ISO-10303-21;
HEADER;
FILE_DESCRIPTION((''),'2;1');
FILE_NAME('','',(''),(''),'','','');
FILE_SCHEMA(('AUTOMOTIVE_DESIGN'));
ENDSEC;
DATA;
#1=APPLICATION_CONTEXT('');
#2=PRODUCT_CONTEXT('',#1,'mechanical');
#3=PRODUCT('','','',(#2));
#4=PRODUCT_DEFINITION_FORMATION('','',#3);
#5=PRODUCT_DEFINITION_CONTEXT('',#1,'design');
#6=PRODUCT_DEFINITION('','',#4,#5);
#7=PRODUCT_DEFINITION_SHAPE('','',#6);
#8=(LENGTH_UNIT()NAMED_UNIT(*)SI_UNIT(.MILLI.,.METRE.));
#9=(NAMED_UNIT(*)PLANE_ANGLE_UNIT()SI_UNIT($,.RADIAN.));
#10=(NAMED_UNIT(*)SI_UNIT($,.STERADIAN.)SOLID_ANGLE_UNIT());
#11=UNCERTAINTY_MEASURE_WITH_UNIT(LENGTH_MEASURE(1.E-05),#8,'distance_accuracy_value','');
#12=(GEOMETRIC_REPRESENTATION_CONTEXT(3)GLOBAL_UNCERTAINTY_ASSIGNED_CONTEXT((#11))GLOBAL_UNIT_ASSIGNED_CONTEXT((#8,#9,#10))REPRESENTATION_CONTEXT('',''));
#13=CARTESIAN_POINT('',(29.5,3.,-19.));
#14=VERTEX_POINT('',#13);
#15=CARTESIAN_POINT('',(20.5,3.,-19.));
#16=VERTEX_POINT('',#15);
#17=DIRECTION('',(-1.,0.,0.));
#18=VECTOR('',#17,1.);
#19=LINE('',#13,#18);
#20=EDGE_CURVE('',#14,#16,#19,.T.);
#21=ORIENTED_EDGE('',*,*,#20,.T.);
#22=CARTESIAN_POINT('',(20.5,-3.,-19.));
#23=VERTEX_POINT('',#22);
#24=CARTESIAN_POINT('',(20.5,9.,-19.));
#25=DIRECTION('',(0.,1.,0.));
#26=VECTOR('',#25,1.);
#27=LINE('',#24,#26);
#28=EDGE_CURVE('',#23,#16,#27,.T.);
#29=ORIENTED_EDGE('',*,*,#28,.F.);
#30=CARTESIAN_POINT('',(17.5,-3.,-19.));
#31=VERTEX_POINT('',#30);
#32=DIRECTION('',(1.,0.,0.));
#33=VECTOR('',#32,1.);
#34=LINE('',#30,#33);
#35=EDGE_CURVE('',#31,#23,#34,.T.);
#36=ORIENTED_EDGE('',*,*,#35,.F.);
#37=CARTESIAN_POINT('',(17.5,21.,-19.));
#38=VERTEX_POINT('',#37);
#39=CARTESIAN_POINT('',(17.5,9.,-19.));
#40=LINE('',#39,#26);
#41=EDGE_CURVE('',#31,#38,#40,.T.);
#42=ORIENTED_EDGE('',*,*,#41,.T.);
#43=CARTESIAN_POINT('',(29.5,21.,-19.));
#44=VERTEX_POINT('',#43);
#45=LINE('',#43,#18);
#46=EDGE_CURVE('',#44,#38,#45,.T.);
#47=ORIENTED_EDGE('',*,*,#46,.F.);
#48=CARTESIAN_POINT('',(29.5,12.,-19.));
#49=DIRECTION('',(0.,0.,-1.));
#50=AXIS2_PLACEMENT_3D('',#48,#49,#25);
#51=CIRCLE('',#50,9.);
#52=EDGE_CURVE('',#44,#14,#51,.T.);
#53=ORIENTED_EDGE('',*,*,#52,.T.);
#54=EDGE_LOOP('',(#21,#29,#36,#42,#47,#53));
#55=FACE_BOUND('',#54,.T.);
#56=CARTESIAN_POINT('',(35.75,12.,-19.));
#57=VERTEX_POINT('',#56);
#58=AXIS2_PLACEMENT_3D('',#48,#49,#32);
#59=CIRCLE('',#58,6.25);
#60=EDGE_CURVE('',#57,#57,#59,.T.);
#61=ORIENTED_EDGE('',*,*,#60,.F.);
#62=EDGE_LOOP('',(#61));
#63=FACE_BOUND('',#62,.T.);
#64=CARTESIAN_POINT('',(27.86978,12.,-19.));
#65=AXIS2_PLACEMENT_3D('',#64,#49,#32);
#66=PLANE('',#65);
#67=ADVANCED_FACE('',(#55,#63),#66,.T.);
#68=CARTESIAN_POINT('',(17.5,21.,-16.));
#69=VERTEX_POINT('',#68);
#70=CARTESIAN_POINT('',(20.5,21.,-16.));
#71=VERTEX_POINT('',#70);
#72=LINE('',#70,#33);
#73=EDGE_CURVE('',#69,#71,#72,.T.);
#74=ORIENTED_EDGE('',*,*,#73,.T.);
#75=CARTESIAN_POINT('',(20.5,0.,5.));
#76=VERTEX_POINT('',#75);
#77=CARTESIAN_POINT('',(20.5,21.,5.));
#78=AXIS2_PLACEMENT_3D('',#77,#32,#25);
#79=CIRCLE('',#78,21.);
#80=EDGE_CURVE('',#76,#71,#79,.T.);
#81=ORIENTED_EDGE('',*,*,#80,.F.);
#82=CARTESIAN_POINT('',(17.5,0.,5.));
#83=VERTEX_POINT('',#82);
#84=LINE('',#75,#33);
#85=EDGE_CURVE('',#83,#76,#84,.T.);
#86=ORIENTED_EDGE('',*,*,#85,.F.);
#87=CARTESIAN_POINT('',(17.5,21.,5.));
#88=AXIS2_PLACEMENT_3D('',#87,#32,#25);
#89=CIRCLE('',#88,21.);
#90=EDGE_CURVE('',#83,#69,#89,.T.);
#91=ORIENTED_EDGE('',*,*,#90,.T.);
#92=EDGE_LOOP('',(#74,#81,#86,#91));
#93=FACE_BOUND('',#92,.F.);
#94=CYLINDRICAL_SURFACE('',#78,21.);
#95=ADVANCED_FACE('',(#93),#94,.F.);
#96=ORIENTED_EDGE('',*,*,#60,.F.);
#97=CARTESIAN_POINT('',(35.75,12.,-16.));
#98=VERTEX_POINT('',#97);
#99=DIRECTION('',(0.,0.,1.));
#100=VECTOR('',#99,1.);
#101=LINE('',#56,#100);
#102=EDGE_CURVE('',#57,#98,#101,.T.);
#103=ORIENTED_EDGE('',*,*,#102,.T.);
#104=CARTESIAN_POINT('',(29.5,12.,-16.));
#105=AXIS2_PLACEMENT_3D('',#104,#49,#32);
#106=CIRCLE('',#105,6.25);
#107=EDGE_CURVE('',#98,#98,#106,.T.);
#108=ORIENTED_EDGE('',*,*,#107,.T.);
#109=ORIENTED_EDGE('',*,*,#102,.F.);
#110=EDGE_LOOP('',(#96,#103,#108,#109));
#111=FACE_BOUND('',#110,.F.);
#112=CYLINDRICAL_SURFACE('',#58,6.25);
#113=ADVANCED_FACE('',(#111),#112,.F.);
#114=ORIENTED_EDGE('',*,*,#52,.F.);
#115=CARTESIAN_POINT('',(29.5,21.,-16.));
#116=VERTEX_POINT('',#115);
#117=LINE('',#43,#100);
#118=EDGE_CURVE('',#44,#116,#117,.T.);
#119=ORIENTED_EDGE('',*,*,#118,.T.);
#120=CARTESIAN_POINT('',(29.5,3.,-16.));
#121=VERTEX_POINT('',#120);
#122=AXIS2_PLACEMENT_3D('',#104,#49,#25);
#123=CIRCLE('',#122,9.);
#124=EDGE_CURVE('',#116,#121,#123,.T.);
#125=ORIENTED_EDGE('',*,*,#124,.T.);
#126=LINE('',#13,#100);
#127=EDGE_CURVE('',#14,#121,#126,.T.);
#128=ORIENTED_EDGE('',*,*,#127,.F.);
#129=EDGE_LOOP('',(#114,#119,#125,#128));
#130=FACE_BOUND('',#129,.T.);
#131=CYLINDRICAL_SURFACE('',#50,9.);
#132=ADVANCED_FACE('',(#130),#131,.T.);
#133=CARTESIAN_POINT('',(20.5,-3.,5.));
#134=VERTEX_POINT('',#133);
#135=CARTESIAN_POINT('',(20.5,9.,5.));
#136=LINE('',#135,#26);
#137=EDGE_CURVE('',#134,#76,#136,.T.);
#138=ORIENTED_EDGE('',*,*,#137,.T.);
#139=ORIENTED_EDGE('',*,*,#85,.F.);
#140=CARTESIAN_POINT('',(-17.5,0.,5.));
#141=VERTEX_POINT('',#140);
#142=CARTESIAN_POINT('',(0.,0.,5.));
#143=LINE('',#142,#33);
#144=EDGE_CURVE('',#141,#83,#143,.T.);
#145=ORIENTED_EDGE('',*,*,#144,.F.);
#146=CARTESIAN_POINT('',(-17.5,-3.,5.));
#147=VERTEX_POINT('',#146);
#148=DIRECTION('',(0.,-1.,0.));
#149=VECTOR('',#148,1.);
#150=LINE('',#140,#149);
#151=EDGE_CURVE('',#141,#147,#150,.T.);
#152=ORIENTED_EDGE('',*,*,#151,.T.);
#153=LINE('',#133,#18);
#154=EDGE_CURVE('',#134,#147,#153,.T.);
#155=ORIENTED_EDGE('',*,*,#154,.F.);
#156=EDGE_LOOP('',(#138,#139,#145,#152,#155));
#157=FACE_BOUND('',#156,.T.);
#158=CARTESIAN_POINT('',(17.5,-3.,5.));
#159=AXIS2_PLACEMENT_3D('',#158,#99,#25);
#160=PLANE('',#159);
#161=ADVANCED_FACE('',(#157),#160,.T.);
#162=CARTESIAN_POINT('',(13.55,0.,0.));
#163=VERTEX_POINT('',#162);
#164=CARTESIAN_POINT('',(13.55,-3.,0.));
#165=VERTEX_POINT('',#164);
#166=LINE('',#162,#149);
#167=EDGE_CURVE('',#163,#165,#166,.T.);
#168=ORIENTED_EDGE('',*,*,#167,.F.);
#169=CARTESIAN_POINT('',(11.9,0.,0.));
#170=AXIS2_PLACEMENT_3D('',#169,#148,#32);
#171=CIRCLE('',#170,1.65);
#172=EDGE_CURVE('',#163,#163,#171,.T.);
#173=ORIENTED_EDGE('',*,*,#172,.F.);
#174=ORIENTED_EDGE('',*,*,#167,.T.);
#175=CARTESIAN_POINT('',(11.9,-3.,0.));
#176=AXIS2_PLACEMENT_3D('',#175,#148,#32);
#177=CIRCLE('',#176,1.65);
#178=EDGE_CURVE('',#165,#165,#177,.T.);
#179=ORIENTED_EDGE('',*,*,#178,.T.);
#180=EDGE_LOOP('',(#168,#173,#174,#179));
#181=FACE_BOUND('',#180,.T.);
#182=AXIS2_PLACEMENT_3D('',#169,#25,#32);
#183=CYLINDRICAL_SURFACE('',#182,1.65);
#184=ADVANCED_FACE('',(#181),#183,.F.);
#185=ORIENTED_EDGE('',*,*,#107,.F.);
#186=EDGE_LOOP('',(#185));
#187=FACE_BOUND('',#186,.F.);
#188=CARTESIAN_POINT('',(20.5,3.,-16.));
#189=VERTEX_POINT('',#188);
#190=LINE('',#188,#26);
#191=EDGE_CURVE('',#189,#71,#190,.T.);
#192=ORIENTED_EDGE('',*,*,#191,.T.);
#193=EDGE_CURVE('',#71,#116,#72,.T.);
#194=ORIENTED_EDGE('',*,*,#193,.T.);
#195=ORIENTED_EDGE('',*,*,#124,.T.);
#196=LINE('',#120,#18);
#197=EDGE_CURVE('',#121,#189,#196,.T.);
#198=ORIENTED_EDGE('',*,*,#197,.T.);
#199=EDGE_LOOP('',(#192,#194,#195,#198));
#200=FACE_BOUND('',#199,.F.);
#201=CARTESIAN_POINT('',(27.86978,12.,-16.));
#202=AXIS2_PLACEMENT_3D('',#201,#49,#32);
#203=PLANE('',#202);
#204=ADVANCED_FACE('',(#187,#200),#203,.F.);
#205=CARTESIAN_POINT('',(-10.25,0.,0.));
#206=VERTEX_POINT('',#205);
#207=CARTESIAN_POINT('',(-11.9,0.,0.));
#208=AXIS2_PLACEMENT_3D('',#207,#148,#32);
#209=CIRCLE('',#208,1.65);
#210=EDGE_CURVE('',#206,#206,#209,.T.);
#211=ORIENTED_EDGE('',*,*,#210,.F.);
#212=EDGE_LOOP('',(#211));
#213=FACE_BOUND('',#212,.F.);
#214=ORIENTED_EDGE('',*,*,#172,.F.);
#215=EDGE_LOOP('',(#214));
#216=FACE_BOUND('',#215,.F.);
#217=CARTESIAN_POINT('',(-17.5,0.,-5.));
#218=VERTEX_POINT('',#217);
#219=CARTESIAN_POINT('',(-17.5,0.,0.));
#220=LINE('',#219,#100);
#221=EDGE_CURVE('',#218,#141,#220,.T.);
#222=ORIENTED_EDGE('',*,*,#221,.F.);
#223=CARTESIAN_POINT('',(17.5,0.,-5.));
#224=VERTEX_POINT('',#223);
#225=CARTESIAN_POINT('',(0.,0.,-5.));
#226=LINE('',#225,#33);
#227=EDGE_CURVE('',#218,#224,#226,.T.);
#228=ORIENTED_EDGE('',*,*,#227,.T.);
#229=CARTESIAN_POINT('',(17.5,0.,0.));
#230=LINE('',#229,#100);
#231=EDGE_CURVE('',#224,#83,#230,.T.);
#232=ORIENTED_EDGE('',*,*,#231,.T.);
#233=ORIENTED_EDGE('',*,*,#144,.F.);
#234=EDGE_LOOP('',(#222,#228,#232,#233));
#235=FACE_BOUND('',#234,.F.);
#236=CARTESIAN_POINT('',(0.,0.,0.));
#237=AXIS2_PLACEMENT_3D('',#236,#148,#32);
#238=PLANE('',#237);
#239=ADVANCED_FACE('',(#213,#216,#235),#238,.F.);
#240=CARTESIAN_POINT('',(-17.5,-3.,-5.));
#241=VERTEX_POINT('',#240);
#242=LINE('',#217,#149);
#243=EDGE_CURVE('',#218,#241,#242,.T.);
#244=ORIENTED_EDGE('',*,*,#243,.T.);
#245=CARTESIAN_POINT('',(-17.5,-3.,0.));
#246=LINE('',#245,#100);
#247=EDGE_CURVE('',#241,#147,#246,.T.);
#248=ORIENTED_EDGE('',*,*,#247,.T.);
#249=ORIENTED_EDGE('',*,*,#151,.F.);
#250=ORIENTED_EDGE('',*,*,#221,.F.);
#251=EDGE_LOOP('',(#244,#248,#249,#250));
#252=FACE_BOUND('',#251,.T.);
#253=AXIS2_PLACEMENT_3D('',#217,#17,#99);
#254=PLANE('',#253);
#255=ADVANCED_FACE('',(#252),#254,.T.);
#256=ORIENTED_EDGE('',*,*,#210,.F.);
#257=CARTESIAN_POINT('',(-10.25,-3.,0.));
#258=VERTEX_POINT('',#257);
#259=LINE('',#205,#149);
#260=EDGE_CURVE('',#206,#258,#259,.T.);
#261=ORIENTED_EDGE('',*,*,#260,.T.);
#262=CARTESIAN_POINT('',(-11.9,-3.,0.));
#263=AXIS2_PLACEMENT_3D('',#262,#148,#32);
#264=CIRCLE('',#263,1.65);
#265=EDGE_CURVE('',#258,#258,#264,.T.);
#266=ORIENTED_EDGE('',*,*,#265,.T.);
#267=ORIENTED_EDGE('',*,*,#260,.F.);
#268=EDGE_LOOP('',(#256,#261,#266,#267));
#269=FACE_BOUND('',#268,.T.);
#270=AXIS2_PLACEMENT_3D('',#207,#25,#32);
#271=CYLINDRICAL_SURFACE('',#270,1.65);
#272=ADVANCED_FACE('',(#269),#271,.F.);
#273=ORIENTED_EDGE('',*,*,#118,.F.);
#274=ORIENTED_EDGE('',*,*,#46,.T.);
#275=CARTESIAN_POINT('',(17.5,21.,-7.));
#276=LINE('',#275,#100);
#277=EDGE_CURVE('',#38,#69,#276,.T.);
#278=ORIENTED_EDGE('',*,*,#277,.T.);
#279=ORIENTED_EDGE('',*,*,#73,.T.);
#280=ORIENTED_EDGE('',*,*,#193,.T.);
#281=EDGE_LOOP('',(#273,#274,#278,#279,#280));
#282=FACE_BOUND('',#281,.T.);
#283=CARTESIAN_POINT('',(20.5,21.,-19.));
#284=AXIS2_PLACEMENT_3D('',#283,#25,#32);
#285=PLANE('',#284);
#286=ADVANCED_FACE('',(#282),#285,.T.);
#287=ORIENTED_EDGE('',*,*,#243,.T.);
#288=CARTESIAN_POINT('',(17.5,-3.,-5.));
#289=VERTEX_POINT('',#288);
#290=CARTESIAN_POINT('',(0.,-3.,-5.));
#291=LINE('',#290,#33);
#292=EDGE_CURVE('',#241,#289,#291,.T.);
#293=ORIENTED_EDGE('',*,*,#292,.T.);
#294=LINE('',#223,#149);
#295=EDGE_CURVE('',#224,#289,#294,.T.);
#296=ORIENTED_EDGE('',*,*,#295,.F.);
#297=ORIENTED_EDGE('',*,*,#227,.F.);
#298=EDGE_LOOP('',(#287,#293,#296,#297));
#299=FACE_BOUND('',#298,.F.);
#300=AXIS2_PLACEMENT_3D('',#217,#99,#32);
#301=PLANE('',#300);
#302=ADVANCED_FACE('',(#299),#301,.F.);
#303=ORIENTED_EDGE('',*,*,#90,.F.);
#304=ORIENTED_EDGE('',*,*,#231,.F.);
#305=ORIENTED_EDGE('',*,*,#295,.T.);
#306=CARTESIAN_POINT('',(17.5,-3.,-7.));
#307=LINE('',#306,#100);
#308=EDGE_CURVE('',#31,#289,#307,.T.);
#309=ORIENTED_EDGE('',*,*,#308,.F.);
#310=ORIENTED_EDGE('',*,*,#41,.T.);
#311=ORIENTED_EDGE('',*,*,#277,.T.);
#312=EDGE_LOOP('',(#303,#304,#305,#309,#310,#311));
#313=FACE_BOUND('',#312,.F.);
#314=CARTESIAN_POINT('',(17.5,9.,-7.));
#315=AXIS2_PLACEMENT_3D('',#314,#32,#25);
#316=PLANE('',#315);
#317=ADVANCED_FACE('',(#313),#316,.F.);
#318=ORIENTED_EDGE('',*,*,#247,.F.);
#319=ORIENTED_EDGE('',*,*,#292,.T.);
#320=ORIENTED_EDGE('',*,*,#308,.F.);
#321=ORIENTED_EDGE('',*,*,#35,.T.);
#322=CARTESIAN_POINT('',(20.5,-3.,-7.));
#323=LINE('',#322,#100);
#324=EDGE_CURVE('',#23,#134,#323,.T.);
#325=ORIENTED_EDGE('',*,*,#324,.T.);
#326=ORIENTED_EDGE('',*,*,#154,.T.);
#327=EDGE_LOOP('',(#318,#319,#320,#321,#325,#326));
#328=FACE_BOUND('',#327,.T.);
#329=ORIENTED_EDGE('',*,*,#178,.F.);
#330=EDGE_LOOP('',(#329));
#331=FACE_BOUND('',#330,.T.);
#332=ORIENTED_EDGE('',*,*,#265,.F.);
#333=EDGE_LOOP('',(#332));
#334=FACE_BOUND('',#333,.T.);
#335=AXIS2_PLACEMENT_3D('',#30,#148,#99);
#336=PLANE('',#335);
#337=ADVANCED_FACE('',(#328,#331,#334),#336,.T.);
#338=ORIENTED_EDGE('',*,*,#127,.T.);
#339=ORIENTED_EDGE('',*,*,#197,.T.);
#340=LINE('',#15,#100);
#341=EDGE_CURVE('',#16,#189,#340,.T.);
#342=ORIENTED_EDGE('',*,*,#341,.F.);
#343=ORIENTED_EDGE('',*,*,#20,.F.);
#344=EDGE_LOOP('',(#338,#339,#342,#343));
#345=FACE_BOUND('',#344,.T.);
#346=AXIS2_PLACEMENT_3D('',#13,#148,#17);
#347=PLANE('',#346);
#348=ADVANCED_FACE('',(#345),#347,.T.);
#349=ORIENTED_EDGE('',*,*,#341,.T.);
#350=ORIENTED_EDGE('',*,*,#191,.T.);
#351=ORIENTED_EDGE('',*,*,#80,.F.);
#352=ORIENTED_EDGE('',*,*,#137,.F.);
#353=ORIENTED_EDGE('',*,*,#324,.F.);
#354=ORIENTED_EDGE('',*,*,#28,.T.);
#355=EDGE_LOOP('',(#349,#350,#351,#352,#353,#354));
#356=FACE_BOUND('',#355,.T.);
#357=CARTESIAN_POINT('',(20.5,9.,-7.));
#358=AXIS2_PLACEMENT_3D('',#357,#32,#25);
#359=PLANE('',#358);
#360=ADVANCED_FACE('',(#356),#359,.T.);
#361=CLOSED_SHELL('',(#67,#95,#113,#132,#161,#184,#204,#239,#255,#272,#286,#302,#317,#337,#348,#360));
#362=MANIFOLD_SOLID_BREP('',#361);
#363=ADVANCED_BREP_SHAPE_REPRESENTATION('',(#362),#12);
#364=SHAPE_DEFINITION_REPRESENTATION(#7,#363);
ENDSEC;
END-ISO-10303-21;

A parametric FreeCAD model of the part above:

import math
import FreeCAD as App
import Part
import Sketcher
from FreeCAD import Vector


def add_polygon(sketch, points):
    """Adds a closed chain of lines whose ends are joined by coincident constraints."""
    first, n = sketch.GeometryCount, len(points)
    for a, b in zip(points, points[1:] + points[:1]):
        sketch.addGeometry(Part.LineSegment(App.Vector(*a, 0), App.Vector(*b, 0)), False)
    for i in range(n):
        sketch.addConstraint(Sketcher.Constraint("Coincident", first + i, 2, first + (i + 1) % n, 1))

doc = App.newDocument("Part")
body = doc.addObject("PartDesign::Body", "Body")

sketch1 = body.newObject("Sketcher::SketchObject", "Sketch")
sketch1.AttachmentSupport = (doc.getObject("XZ_Plane"), [""])
sketch1.MapMode = "FlatFace"
add_polygon(sketch1, [(-17.5, 5), (-17.5, -5), (17.5, -5), (17.5, 5)])
sketch1.addGeometry(Part.Circle(Vector(-11.9, 0, 0), Vector(0, 0, 1), 1.6), False)
sketch1.addGeometry(Part.Circle(Vector(11.9, 0, 0), Vector(0, 0, 1), 1.6), False)
sketch1.addConstraint([
    Sketcher.Constraint("Vertical", 0),
    Sketcher.Constraint("Horizontal", 1),
    Sketcher.Constraint("Vertical", 2),
    Sketcher.Constraint("Horizontal", 3),
    Sketcher.Constraint("Equal", 4, 5),
    Sketcher.Constraint("Symmetric", 4, 3, 5, 3, -1, 1),
    Sketcher.Constraint("Symmetric", 0, 2, 2, 2, -1, 1),
    Sketcher.Constraint("PointOnObject", 4, 3, -1),
    Sketcher.Constraint("Diameter", 4, 3.3),
    Sketcher.Constraint("DistanceX", 1, 1, 1, 2, 35.0),
    Sketcher.Constraint("DistanceY", 0, 2, 0, 1, 10.0),
    Sketcher.Constraint("DistanceX", 4, 3, -1, 1, 11.9),
])
pad1 = body.newObject("PartDesign::Pad", "Pad")
pad1.Profile = sketch1
pad1.Length = 3

sketch2 = body.newObject("Sketcher::SketchObject", "Sketch001")
sketch2.AttachmentSupport = (doc.getObject("YZ_Plane"), [""])
sketch2.MapMode = "FlatFace"
sketch2.AttachmentOffset = App.Placement(Vector(0, 0, 17.5), App.Rotation())
add_polygon(sketch2, [(-3, 5), (-3, -19), (21, -19), (21, 5)])
sketch2.addConstraint([
    Sketcher.Constraint("Vertical", 0),
    Sketcher.Constraint("Horizontal", 1),
    Sketcher.Constraint("Vertical", 2),
    Sketcher.Constraint("Horizontal", 3),
    Sketcher.Constraint("Equal", 3, 0),
    Sketcher.Constraint("DistanceX", 1, 1, 1, 2, 24.0),
    Sketcher.Constraint("DistanceX", 0, 2, -1, 1, 3.0),
    Sketcher.Constraint("DistanceY", 0, 2, -1, 1, 19.0),
])
pad2 = body.newObject("PartDesign::Pad", "Pad001")
pad2.Profile = sketch2
pad2.Length = 3

sketch3 = body.newObject("Sketcher::SketchObject", "Sketch002")
sketch3.AttachmentSupport = (doc.getObject("XY_Plane"), [""])
sketch3.MapMode = "FlatFace"
sketch3.AttachmentOffset = App.Placement(Vector(0, 0, -19), App.Rotation())
sketch3.addGeometry([
    Part.LineSegment(Vector(20, 21, 0), Vector(30, 21, 0)),
    Part.ArcOfCircle(Part.Circle(Vector(30, 12, 0), Vector(0, 0, 1), 9), math.radians(-90), math.radians(90)),
    Part.LineSegment(Vector(30, 3, 0), Vector(20, 3, 0)),
    Part.LineSegment(Vector(20, 3, 0), Vector(20, 21, 0)),
    Part.Circle(Vector(30, 12, 0), Vector(0, 0, 1), 6),
], False)
sketch3.addConstraint([
    Sketcher.Constraint("Tangent", 0, 2, 1, 2),
    Sketcher.Constraint("Tangent", 1, 1, 2, 1),
    Sketcher.Constraint("Coincident", 2, 2, 3, 1),
    Sketcher.Constraint("Coincident", 3, 2, 0, 1),
    Sketcher.Constraint("Horizontal", 0),
    Sketcher.Constraint("Horizontal", 2),
    Sketcher.Constraint("Vertical", 3),
    Sketcher.Constraint("Coincident", 4, 3, 1, 3),
    Sketcher.Constraint("Radius", 1, 9.0),
    Sketcher.Constraint("Diameter", 4, 12.5),
    Sketcher.Constraint("DistanceX", 0, 1, 0, 2, 9.0),
    Sketcher.Constraint("DistanceY", -1, 1, 1, 3, 12.0),
    Sketcher.Constraint("DistanceX", -1, 1, 1, 3, 29.5),
])
pad3 = body.newObject("PartDesign::Pad", "Pad002")
pad3.Profile = sketch3
pad3.Length = 3

sketch4 = body.newObject("Sketcher::SketchObject", "Sketch003")
sketch4.AttachmentSupport = (doc.getObject("YZ_Plane"), [""])
sketch4.MapMode = "FlatFace"
sketch4.AttachmentOffset = App.Placement(Vector(0, 0, 20.5), App.Rotation())
sketch4.addGeometry(Part.Circle(Vector(21, 5, 0), Vector(0, 0, 1), 21), False)
sketch4.addConstraint([
    Sketcher.Constraint("Diameter", 0, 42.0),
    Sketcher.Constraint("DistanceX", -1, 1, 0, 3, 21.0),
    Sketcher.Constraint("DistanceY", -1, 1, 0, 3, 5.0),
])
pocket1 = body.newObject("PartDesign::Pocket", "Pocket")
pocket1.Profile = sketch4
pocket1.Length = 3

doc.recompute()
